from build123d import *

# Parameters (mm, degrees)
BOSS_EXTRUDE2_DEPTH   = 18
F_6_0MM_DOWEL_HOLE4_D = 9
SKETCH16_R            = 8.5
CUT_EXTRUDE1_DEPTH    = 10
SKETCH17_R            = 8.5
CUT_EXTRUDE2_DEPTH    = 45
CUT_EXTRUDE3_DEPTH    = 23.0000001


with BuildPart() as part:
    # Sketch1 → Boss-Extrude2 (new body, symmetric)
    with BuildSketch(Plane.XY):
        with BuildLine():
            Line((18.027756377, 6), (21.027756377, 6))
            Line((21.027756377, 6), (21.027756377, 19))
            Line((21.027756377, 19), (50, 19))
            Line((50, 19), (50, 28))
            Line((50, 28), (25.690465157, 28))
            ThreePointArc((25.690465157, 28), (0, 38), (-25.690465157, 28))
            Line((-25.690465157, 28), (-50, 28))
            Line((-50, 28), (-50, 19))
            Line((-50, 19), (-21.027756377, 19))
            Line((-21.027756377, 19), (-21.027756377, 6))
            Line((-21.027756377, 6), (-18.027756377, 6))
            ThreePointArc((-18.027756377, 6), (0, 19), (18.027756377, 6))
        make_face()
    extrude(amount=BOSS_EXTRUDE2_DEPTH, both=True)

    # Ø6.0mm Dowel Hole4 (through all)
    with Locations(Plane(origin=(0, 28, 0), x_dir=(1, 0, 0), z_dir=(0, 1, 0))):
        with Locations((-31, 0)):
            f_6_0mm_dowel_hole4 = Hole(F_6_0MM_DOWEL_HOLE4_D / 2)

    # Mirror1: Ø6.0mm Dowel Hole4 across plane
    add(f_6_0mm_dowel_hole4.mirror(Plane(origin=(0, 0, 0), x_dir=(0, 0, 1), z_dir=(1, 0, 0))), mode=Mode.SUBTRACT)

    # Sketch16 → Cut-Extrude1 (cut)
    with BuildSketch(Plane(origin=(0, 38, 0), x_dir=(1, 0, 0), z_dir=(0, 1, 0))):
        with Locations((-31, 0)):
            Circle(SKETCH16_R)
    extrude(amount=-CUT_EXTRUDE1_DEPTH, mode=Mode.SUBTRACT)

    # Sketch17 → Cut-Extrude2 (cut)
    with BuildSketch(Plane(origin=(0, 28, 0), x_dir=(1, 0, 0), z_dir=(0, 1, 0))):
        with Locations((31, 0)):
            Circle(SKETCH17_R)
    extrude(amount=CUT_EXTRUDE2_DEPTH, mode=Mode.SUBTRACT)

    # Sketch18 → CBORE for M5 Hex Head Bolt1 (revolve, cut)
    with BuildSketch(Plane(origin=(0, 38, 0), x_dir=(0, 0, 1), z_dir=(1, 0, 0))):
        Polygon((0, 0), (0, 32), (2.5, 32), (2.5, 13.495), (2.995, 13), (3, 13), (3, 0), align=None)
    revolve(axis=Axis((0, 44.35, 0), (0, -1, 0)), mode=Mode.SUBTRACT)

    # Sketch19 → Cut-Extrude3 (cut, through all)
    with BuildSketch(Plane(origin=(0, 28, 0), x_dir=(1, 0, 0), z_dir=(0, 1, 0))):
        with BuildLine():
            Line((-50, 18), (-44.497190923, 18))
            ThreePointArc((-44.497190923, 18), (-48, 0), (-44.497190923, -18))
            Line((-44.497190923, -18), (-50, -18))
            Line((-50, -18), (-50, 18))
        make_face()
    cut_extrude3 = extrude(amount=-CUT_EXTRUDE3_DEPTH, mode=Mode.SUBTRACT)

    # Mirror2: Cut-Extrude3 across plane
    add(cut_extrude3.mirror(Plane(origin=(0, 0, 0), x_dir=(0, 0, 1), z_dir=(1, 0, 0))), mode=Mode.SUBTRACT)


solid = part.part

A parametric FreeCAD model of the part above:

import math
import FreeCAD as App
import Part
import Sketcher

V = App.Vector
Q = App.Units.Quantity


def add_polygon(sketch, points):
    """Adds a closed chain of lines whose ends are joined by coincident constraints."""
    first, n = sketch.GeometryCount, len(points)
    for a, b in zip(points, points[1:] + points[:1]):
        sketch.addGeometry(Part.LineSegment(App.Vector(*a, 0), App.Vector(*b, 0)), False)
    for i in range(n):
        sketch.addConstraint(Sketcher.Constraint("Coincident", first + i, 2, first + (i + 1) % n, 1))

doc = App.newDocument("Part")
params = doc.addObject("Spreadsheet::Sheet", "Params")
for row, (alias, value) in enumerate([
    ("sketch1_radius", "38 mm"),
    ("sketch1_radius2", "19 mm"),
    ("sketch1_width", "3 mm"),
    ("sketch1_height", "13 mm"),
    ("sketch1_height2", "9 mm"),
    ("pad1_length", "36 mm"),
    ("sketch2_diameter", "9 mm"),
    ("hole_diameter", "9 mm"),
    ("sketch3_diameter", "17 mm"),
    ("pocket1_length", "10 mm"),
    ("sketch4_diameter", "17 mm"),
    ("pocket2_length", "45 mm"),
    ("sketch5_width", "32 mm"),
    ("sketch5_width2", "13 mm"),
    ("sketch5_height", "3 mm"),
    ("sketch5_height2", "2.5 mm"),
    ("groove_angle", "360 deg"),
    ("sketch6_radius", "48 mm"),
    ("sketch6_height", "36 mm"),
], start=1):
    params.set(f"A{row}", alias)
    params.set(f"B{row}", "=" + value)
    params.setAlias(f"B{row}", alias)

body = doc.addObject("PartDesign::Body", "Body")

sketch1 = body.newObject("Sketcher::SketchObject", "Sketch")
sketch1.AttachmentSupport = (doc.getObject("XY_Plane"), [""])
sketch1.MapMode = "FlatFace"
sketch1.addGeometry([
    Part.LineSegment(V(18.027756, 6, 0), V(21.027756, 6, 0)),
    Part.LineSegment(V(21.027756, 6, 0), V(21.027756, 19, 0)),
    Part.LineSegment(V(21.027756, 19, 0), V(50, 19, 0)),
    Part.LineSegment(V(50, 19, 0), V(50, 28, 0)),
    Part.LineSegment(V(50, 28, 0), V(25.690465, 28, 0)),
    Part.ArcOfCircle(Part.Circle(V(0, 0, 0), V(0, 0, 1), 38), math.radians(47.463102), math.radians(132.536898)),
    Part.LineSegment(V(-25.690465, 28, 0), V(-50, 28, 0)),
    Part.LineSegment(V(-50, 28, 0), V(-50, 19, 0)),
    Part.LineSegment(V(-50, 19, 0), V(-21.027756, 19, 0)),
    Part.LineSegment(V(-21.027756, 19, 0), V(-21.027756, 6, 0)),
    Part.LineSegment(V(-21.027756, 6, 0), V(-18.027756, 6, 0)),
    Part.ArcOfCircle(Part.Circle(V(0, 0, 0), V(0, 0, 1), 19), math.radians(18.40848), math.radians(161.59152)),
], False)
sketch1.addConstraint([
    Sketcher.Constraint("Coincident", 0, 2, 1, 1),
    Sketcher.Constraint("Coincident", 1, 2, 2, 1),
    Sketcher.Constraint("Coincident", 2, 2, 3, 1),
    Sketcher.Constraint("Coincident", 3, 2, 4, 1),
    Sketcher.Constraint("Coincident", 4, 2, 5, 1),
    Sketcher.Constraint("Coincident", 5, 2, 6, 1),
    Sketcher.Constraint("Coincident", 6, 2, 7, 1),
    Sketcher.Constraint("Coincident", 7, 2, 8, 1),
    Sketcher.Constraint("Coincident", 8, 2, 9, 1),
    Sketcher.Constraint("Coincident", 9, 2, 10, 1),
    Sketcher.Constraint("Coincident", 10, 2, 11, 2),
    Sketcher.Constraint("Coincident", 11, 1, 0, 1),
    Sketcher.Constraint("Horizontal", 0),
    Sketcher.Constraint("Vertical", 1),
    Sketcher.Constraint("Horizontal", 2),
    Sketcher.Constraint("Vertical", 3),
    Sketcher.Constraint("Horizontal", 4),
    Sketcher.Constraint("Horizontal", 6),
    Sketcher.Constraint("Vertical", 7),
    Sketcher.Constraint("Horizontal", 8),
    Sketcher.Constraint("Vertical", 9),
    Sketcher.Constraint("Horizontal", 10),
    Sketcher.Constraint("Coincident", 5, 3, -1, 1),
    Sketcher.Constraint("Coincident", 11, 3, -1, 1),
    Sketcher.Constraint("Symmetric", 3, 2, 6, 2, -2),
    Sketcher.Constraint("Symmetric", 1, 2, 8, 2, -2),
    Sketcher.Constraint("Horizontal", 0, 2, 9, 2),
    Sketcher.Constraint("Radius", 5, 38.0),
    Sketcher.Constraint("Radius", 11, 19.0),
    Sketcher.Constraint("DistanceX", 0, 1, 0, 2, 3.0),
    Sketcher.Constraint("DistanceY", 1, 1, 1, 2, 13.0),
    Sketcher.Constraint("DistanceY", 3, 1, 3, 2, 9.0),
    Sketcher.Constraint("DistanceY", -1, 1, 0, 2, 6.0),
    Sketcher.Constraint("DistanceX", -1, 1, 2, 2, 50.0),
])
sketch1.setExpression("Constraints[27]", "Params.sketch1_radius")
sketch1.setExpression("Constraints[28]", "Params.sketch1_radius2")
sketch1.setExpression("Constraints[29]", "Params.sketch1_width")
sketch1.setExpression("Constraints[30]", "Params.sketch1_height")
sketch1.setExpression("Constraints[31]", "Params.sketch1_height2")
pad1 = body.newObject("PartDesign::Pad", "Pad")
pad1.Profile = sketch1
pad1.setExpression("Length", "Params.pad1_length")
pad1.Midplane = True

sketch2 = body.newObject("Sketcher::SketchObject", "Sketch001")
sketch2.AttachmentSupport = (doc.getObject("XZ_Plane"), [""])
sketch2.MapMode = "FlatFace"
sketch2.AttachmentOffset = App.Placement(V(0, 0, -28), App.Rotation())
sketch2.addGeometry(Part.Circle(V(-31, 0, 0), V(0, 0, 1), 4.5), False)
sketch2.addConstraint([
    Sketcher.Constraint("PointOnObject", 0, 3, -1),
    Sketcher.Constraint("Diameter", 0, 9.0),
    Sketcher.Constraint("DistanceX", 0, 3, -1, 1, 31.0),
])
sketch2.setExpression("Constraints[1]", "Params.sketch2_diameter")
doc.recompute()
hole = body.newObject("PartDesign::Hole", "Hole")
hole.Profile = sketch2
hole.ThreadType = "None"
hole.setExpression("Diameter", "Params.hole_diameter")
hole.DepthType = "ThroughAll"
hole.Reversed = True
doc.recompute()

mirrored = body.newObject("PartDesign::Mirrored", "Mirrored")
mirrored.Originals = [hole]
mirrored.MirrorPlane = (doc.getObject("YZ_Plane"), [""])
body.Tip = mirrored

sketch3 = body.newObject("Sketcher::SketchObject", "Sketch002")
sketch3.AttachmentSupport = (doc.getObject("XZ_Plane"), [""])
sketch3.MapMode = "FlatFace"
sketch3.AttachmentOffset = App.Placement(V(0, 0, -38), App.Rotation())
sketch3.addGeometry(Part.Circle(V(-31, 0, 0), V(0, 0, 1), 8.5), False)
sketch3.addConstraint([
    Sketcher.Constraint("PointOnObject", 0, 3, -1),
    Sketcher.Constraint("Diameter", 0, 17.0),
    Sketcher.Constraint("DistanceX", 0, 3, -1, 1, 31.0),
])
sketch3.setExpression("Constraints[1]", "Params.sketch3_diameter")
pocket1 = body.newObject("PartDesign::Pocket", "Pocket")
pocket1.Profile = sketch3
pocket1.setExpression("Length", "Params.pocket1_length")
pocket1.Reversed = True

sketch4 = body.newObject("Sketcher::SketchObject", "Sketch003")
sketch4.AttachmentSupport = (doc.getObject("XZ_Plane"), [""])
sketch4.MapMode = "FlatFace"
sketch4.AttachmentOffset = App.Placement(V(0, 0, -28), App.Rotation())
sketch4.addGeometry(Part.Circle(V(31, 0, 0), V(0, 0, 1), 8.5), False)
sketch4.addConstraint([
    Sketcher.Constraint("PointOnObject", 0, 3, -1),
    Sketcher.Constraint("Diameter", 0, 17.0),
    Sketcher.Constraint("DistanceX", -1, 1, 0, 3, 31.0),
])
sketch4.setExpression("Constraints[1]", "Params.sketch4_diameter")
pocket2 = body.newObject("PartDesign::Pocket", "Pocket001")
pocket2.Profile = sketch4
pocket2.setExpression("Length", "Params.pocket2_length")

sketch5 = body.newObject("Sketcher::SketchObject", "Sketch004")
sketch5.AttachmentSupport = (doc.getObject("YZ_Plane"), [""])
sketch5.MapMode = "FlatFace"
add_polygon(sketch5, [(6, 0), (38, 0), (38, 3), (25, 3), (25, 2.995), (24.505, 2.5), (6, 2.5)])
sketch5.addConstraint([
    Sketcher.Constraint("Horizontal", 0),
    Sketcher.Constraint("Vertical", 1),
    Sketcher.Constraint("Horizontal", 2),
    Sketcher.Constraint("Vertical", 3),
    Sketcher.Constraint("Horizontal", 5),
    Sketcher.Constraint("Vertical", 6),
    Sketcher.Constraint("PointOnObject", 0, 2, -1),
    Sketcher.Constraint("DistanceX", 0, 1, 0, 2, 32.0),
    Sketcher.Constraint("DistanceX", 2, 2, 2, 1, 13.0),
    Sketcher.Constraint("DistanceY", 1, 1, 1, 2, 3.0),
    Sketcher.Constraint("Angle", 4, Q("-135 deg")),
    Sketcher.Constraint("DistanceY", 6, 2, 6, 1, 2.5),
    Sketcher.Constraint("DistanceX", -1, 1, 0, 2, 38.0),
    Sketcher.Constraint("DistanceX", 5, 2, 5, 1, 18.505),
])
sketch5.setExpression("Constraints[14]", "Params.sketch5_width")
sketch5.setExpression("Constraints[15]", "Params.sketch5_width2")
sketch5.setExpression("Constraints[16]", "Params.sketch5_height")
sketch5.setExpression("Constraints[18]", "Params.sketch5_height2")
groove = body.newObject("PartDesign::Groove", "Groove")
groove.Profile = sketch5
groove.ReferenceAxis = (sketch5, ["H_Axis"])
groove.setExpression("Angle", "Params.groove_angle")

sketch6 = body.newObject("Sketcher::SketchObject", "Sketch005")
sketch6.AttachmentSupport = (doc.getObject("XZ_Plane"), [""])
sketch6.MapMode = "FlatFace"
sketch6.AttachmentOffset = App.Placement(V(0, 0, -28), App.Rotation())
sketch6.addGeometry([
    Part.LineSegment(V(-44.497191, -18, 0), V(-50, -18, 0)),
    Part.LineSegment(V(-50, -18, 0), V(-50, 18, 0)),
    Part.LineSegment(V(-50, 18, 0), V(-44.497191, 18, 0)),
    Part.ArcOfCircle(Part.Circle(V(0, 0, 0), V(0, 0, 1), 48), math.radians(157.975687), math.radians(202.024313)),
], False)
sketch6.addConstraint([
    Sketcher.Constraint("Coincident", 0, 2, 1, 1),
    Sketcher.Constraint("Coincident", 1, 2, 2, 1),
    Sketcher.Constraint("Coincident", 2, 2, 3, 1),
    Sketcher.Constraint("Coincident", 3, 2, 0, 1),
    Sketcher.Constraint("Horizontal", 0),
    Sketcher.Constraint("Vertical", 1),
    Sketcher.Constraint("Horizontal", 2),
    Sketcher.Constraint("Coincident", 3, 3, -1, 1),
    Sketcher.Constraint("Vertical", 2, 2, 3, 2),
    Sketcher.Constraint("Radius", 3, 48.0),
    Sketcher.Constraint("DistanceY", 1, 1, 1, 2, 36.0),
    Sketcher.Constraint("DistanceX", 0, 2, -1, 1, 50.0),
])
sketch6.setExpression("Constraints[9]", "Params.sketch6_radius")
sketch6.setExpression("Constraints[10]", "Params.sketch6_height")
pocket3 = body.newObject("PartDesign::Pocket", "Pocket002")
pocket3.Profile = sketch6
pocket3.Type = "ThroughAll"
pocket3.Reversed = True
doc.recompute()

mirrored2 = body.newObject("PartDesign::Mirrored", "Mirrored001")
mirrored2.Originals = [pocket3]
mirrored2.MirrorPlane = (doc.getObject("YZ_Plane"), [""])
body.Tip = mirrored2

doc.recompute()
